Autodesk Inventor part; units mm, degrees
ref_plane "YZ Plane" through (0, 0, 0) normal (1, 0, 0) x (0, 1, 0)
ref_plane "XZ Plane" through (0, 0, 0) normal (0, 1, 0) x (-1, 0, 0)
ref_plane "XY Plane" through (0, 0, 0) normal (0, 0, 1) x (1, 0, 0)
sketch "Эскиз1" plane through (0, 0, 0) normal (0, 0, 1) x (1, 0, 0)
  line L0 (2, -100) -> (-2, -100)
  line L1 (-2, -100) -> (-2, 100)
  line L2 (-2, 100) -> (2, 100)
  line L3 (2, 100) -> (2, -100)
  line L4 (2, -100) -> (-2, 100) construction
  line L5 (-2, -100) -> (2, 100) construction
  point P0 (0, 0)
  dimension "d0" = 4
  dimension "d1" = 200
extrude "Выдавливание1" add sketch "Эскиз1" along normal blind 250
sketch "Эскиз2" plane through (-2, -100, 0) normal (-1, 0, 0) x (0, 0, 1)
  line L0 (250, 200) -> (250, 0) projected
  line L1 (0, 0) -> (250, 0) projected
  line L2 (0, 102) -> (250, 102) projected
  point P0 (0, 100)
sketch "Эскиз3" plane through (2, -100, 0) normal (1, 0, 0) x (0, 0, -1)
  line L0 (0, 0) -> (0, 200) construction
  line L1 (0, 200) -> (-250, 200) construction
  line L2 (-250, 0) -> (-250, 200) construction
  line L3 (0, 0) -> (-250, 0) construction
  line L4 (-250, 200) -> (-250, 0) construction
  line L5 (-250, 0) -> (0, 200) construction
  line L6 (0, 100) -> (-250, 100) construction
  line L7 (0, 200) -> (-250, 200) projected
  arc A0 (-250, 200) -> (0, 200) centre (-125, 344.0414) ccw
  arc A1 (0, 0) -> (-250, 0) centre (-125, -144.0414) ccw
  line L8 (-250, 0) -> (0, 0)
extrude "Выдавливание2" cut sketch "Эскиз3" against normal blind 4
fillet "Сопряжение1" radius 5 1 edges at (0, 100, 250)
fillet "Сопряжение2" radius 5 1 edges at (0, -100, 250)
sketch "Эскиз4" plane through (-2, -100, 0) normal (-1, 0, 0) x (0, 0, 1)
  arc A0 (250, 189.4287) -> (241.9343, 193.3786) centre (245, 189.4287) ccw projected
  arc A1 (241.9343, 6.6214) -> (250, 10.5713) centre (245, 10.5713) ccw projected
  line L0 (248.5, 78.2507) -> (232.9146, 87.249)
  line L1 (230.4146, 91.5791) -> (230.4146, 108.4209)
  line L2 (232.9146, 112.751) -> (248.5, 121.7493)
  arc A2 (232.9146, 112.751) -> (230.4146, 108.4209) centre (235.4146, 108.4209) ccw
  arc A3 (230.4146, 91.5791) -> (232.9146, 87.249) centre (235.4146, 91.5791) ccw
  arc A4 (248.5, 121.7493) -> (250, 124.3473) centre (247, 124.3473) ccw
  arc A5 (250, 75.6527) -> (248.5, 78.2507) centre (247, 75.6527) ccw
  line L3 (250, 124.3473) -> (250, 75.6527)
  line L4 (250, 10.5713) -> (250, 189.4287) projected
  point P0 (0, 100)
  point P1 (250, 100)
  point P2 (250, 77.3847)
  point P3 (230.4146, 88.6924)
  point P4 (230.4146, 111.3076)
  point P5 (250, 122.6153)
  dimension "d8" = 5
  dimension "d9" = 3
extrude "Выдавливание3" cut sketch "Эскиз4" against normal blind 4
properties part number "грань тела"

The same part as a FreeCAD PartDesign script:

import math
import FreeCAD as App
import Part
import Sketcher
from FreeCAD import Vector
Q = App.Units.Quantity


def edges_at(feature, points):
    """Names of the edges that pass closest to the given points."""
    edges = feature.Shape.Edges
    near = lambda p: min(range(len(edges)), key=lambda i: edges[i].distToShape(Part.Vertex(*p))[0])
    return sorted({f"Edge{near(p) + 1}" for p in points})

doc = App.newDocument("Part")
body = doc.addObject("PartDesign::Body", "Body")

# Sketch on XY plane
sketch1 = body.newObject("Sketcher::SketchObject", "Sketch")
sketch1.AttachmentSupport = (doc.getObject("XY_Plane"), [""])
sketch1.MapMode = "FlatFace"
sketch1.addGeometry(Part.LineSegment(Vector(-2, -100, 0), Vector(2, -100, 0)), False)
sketch1.addGeometry(Part.LineSegment(Vector(2, -100, 0), Vector(2, 100, 0)), False)
sketch1.addGeometry(Part.LineSegment(Vector(2, 100, 0), Vector(-2, 100, 0)), False)
sketch1.addGeometry(Part.LineSegment(Vector(-2, 100, 0), Vector(-2, -100, 0)), False)
sketch1.addConstraint(Sketcher.Constraint("Coincident", 0, 2, 1, 1))
sketch1.addConstraint(Sketcher.Constraint("Coincident", 1, 2, 2, 1))
sketch1.addConstraint(Sketcher.Constraint("Coincident", 2, 2, 3, 1))
sketch1.addConstraint(Sketcher.Constraint("Coincident", 3, 2, 0, 1))
sketch1.addConstraint(Sketcher.Constraint("Horizontal", 0))
sketch1.addConstraint(Sketcher.Constraint("Vertical", 1))
sketch1.addConstraint(Sketcher.Constraint("Horizontal", 2))
sketch1.addConstraint(Sketcher.Constraint("Vertical", 3))
sketch1.addConstraint(Sketcher.Constraint("Symmetric", 0, 2, 2, 2, -1, 1))
sketch1.addConstraint(Sketcher.Constraint("DistanceX", 0, 1, 0, 2, Q("4 mm")))
sketch1.addConstraint(Sketcher.Constraint("DistanceY", 1, 1, 1, 2, Q("200 mm")))
pad1 = body.newObject("PartDesign::Pad", "Pad")
pad1.Profile = sketch1
pad1.Length = 250

# Sketch on YZ plane
sketch2 = body.newObject("Sketcher::SketchObject", "Sketch001")
sketch2.AttachmentSupport = (doc.getObject("YZ_Plane"), [""])
sketch2.MapMode = "FlatFace"
sketch2.AttachmentOffset = App.Placement(Vector(0, 0, 2), App.Rotation())
sketch2.addGeometry(Part.ArcOfCircle(Part.Circle(Vector(244, 125, 0), Vector(0, 0, 1), 191), math.radians(139), math.radians(221)), False)
sketch2.addGeometry(Part.LineSegment(Vector(100, 0, 0), Vector(100, 250, 0)), False)
sketch2.addGeometry(Part.LineSegment(Vector(-100, 250, 0), Vector(-100, 0, 0)), False)
sketch2.addGeometry(Part.ArcOfCircle(Part.Circle(Vector(-244, 125, 0), Vector(0, 0, 1), 191), math.radians(-41), math.radians(41)), False)
sketch2.addConstraint(Sketcher.Constraint("Coincident", 0, 1, 1, 2))
sketch2.addConstraint(Sketcher.Constraint("Coincident", 1, 1, 0, 2))
sketch2.addConstraint(Sketcher.Constraint("Coincident", 2, 1, 3, 2))
sketch2.addConstraint(Sketcher.Constraint("Coincident", 3, 1, 2, 2))
sketch2.addConstraint(Sketcher.Constraint("Vertical", 1))
sketch2.addConstraint(Sketcher.Constraint("Vertical", 2))
sketch2.addConstraint(Sketcher.Constraint("Equal", 0, 3))
sketch2.addConstraint(Sketcher.Constraint("Symmetric", 1, 1, 3, 1, -1, 1))
sketch2.addConstraint(Sketcher.Constraint("Symmetric", 0, 3, 3, 3, -2))
sketch2.addConstraint(Sketcher.Constraint("DistanceY", 1, 1, 1, 2, Q("250 mm")))
sketch2.addConstraint(Sketcher.Constraint("DistanceX", -1, 1, 0, 1, Q("100 mm")))
sketch2.addConstraint(Sketcher.Constraint("Radius", 0, Q("190.7169 mm")))
pocket1 = body.newObject("PartDesign::Pocket", "Pocket")
pocket1.Profile = sketch2
pocket1.Length = 4
doc.recompute()

fillet = body.newObject("PartDesign::Fillet", "Fillet")
fillet.Base = (pocket1, edges_at(pocket1, [(0, 100, 250)]))
fillet.Radius = 5
doc.recompute()

fillet2 = body.newObject("PartDesign::Fillet", "Fillet001")
fillet2.Base = (fillet, edges_at(fillet, [(0, -100, 250)]))
fillet2.Radius = 5

# Sketch on YZ plane
sketch3 = body.newObject("Sketcher::SketchObject", "Sketch002")
sketch3.AttachmentSupport = (doc.getObject("YZ_Plane"), [""])
sketch3.MapMode = "FlatFace"
sketch3.AttachmentOffset = App.Placement(Vector(0, 0, -2), App.Rotation())
sketch3.addGeometry(Part.LineSegment(Vector(-12.8, 232.9, 0), Vector(-21.7, 248.5, 0)), False)
sketch3.addGeometry(Part.ArcOfCircle(Part.Circle(Vector(-24.3, 247, 0), Vector(0, 0, 1), 3), math.radians(30), math.radians(90)), False)
sketch3.addGeometry(Part.LineSegment(Vector(-24.3, 250, 0), Vector(24.3, 250, 0)), False)
sketch3.addGeometry(Part.ArcOfCircle(Part.Circle(Vector(24.3, 247, 0), Vector(0, 0, 1), 3), math.radians(90), math.radians(150)), False)
sketch3.addGeometry(Part.LineSegment(Vector(21.7, 248.5, 0), Vector(12.8, 232.9, 0)), False)
sketch3.addGeometry(Part.ArcOfCircle(Part.Circle(Vector(8.4, 235.4, 0), Vector(0, 0, 1), 5), math.radians(-90), math.radians(-30)), False)
sketch3.addGeometry(Part.LineSegment(Vector(8.4, 230.4, 0), Vector(-8.4, 230.4, 0)), False)
sketch3.addGeometry(Part.ArcOfCircle(Part.Circle(Vector(-8.4, 235.4, 0), Vector(0, 0, 1), 5), math.radians(-150), math.radians(-90)), False)
sketch3.addConstraint(Sketcher.Constraint("Tangent", 0, 2, 1, 1))
sketch3.addConstraint(Sketcher.Constraint("Tangent", 1, 2, 2, 1))
sketch3.addConstraint(Sketcher.Constraint("Tangent", 2, 2, 3, 1))
sketch3.addConstraint(Sketcher.Constraint("Tangent", 3, 2, 4, 1))
sketch3.addConstraint(Sketcher.Constraint("Tangent", 4, 2, 5, 2))
sketch3.addConstraint(Sketcher.Constraint("Tangent", 5, 1, 6, 1))
sketch3.addConstraint(Sketcher.Constraint("Tangent", 6, 2, 7, 2))
sketch3.addConstraint(Sketcher.Constraint("Tangent", 7, 1, 0, 1))
sketch3.addConstraint(Sketcher.Constraint("Horizontal", 2))
sketch3.addConstraint(Sketcher.Constraint("Horizontal", 6))
sketch3.addConstraint(Sketcher.Constraint("Equal", 1, 3))
sketch3.addConstraint(Sketcher.Constraint("Equal", 5, 7))
sketch3.addConstraint(Sketcher.Constraint("Symmetric", 0, 2, 3, 2, -2))
sketch3.addConstraint(Sketcher.Constraint("Radius", 1, Q("3 mm")))
sketch3.addConstraint(Sketcher.Constraint("Radius", 5, Q("5 mm")))
sketch3.addConstraint(Sketcher.Constraint("Angle", 0, Q("120.0002 deg")))
sketch3.addConstraint(Sketcher.Constraint("DistanceY", -1, 1, 1, 3, Q("247 mm")))
sketch3.addConstraint(Sketcher.Constraint("DistanceX", 2, 1, 2, 2, Q("48.6946 mm")))
sketch3.addConstraint(Sketcher.Constraint("DistanceX", 6, 2, 6, 1, Q("16.8418 mm")))
pocket2 = body.newObject("PartDesign::Pocket", "Pocket001")
pocket2.Profile = sketch3
pocket2.Length = 4
pocket2.Reversed = True

doc.recompute()
